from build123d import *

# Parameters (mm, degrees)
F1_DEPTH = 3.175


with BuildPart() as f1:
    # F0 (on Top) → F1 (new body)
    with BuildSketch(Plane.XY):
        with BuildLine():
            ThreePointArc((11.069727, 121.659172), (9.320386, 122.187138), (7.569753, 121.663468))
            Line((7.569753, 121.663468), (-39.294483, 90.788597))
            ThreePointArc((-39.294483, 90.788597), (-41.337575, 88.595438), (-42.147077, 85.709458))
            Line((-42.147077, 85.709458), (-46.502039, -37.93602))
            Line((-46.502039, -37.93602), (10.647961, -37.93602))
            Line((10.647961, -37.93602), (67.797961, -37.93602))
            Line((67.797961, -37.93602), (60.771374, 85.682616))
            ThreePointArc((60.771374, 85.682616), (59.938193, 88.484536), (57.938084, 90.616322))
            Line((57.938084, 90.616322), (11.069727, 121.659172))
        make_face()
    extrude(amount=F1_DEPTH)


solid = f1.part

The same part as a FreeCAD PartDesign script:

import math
import FreeCAD as App
import Part
import Sketcher
Q = App.Units.Quantity

doc = App.newDocument("Part")
body = doc.addObject("PartDesign::Body", "Body")

# Sketch on XY plane
sketch1 = body.newObject("Sketcher::SketchObject", "Sketch")
sketch1.AttachmentSupport = (doc.getObject("XY_Plane"), [""])
sketch1.MapMode = "FlatFace"
sketch1.addGeometry(Part.ArcOfCircle(Part.Circle(App.Vector(9.316488, 119.012143, 0), App.Vector(0, 0, 1), 3.174997), math.radians(56.481816), math.radians(123.377531)), False)
sketch1.addGeometry(Part.LineSegment(App.Vector(7.569753, 121.663468, 0), App.Vector(-39.294483, 90.788597, 0)), False)
sketch1.addGeometry(Part.ArcOfCircle(Part.Circle(App.Vector(-35.801013, 85.485941, 0), App.Vector(0, 0, 1), 6.349999), math.radians(123.377501), math.radians(177.982801)), False)
sketch1.addGeometry(Part.LineSegment(App.Vector(-42.147077, 85.709458, 0), App.Vector(-46.502039, -37.93602, 0)), False)
sketch1.addGeometry(Part.LineSegment(App.Vector(-46.502039, -37.93602, 0), App.Vector(67.797961, -37.93602, 0)), False)
sketch1.addGeometry(Part.LineSegment(App.Vector(67.797961, -37.93602, 0), App.Vector(60.771374, 85.682616, 0)), False)
sketch1.addGeometry(Part.ArcOfCircle(Part.Circle(App.Vector(54.431603, 85.322255, 0), App.Vector(0, 0, 1), 6.350005), math.radians(3.253271), math.radians(56.481832)), False)
sketch1.addGeometry(Part.LineSegment(App.Vector(57.938084, 90.616322, 0), App.Vector(11.069727, 121.659172, 0)), False)
sketch1.addConstraint(Sketcher.Constraint("Tangent", 0, 2, 1, 1))
sketch1.addConstraint(Sketcher.Constraint("Tangent", 1, 2, 2, 1))
sketch1.addConstraint(Sketcher.Constraint("Tangent", 2, 2, 3, 1))
sketch1.addConstraint(Sketcher.Constraint("Coincident", 3, 2, 4, 1))
sketch1.addConstraint(Sketcher.Constraint("Coincident", 4, 2, 5, 1))
sketch1.addConstraint(Sketcher.Constraint("Tangent", 5, 2, 6, 1))
sketch1.addConstraint(Sketcher.Constraint("Tangent", 6, 2, 7, 1))
sketch1.addConstraint(Sketcher.Constraint("Tangent", 7, 2, 0, 1))
sketch1.addConstraint(Sketcher.Constraint("Horizontal", 4))
sketch1.addConstraint(Sketcher.Constraint("Radius", 2, Q("0.25 in")))
sketch1.addConstraint(Sketcher.Constraint("Radius", 6, Q("0.2500002 in")))
sketch1.addConstraint(Sketcher.Constraint("DistanceX", 4, 1, 4, 2, Q("4.5 in")))
sketch1.addConstraint(Sketcher.Constraint("Radius", 0, Q("0.1249999 in")))
sketch1.addConstraint(Sketcher.Constraint("DistanceY", 2, 3, 2, 2, Q("0.0087999 in")))
sketch1.addConstraint(Sketcher.Constraint("DistanceX", 2, 3, 0, 3, Q("45.117501 mm")))
sketch1.addConstraint(Sketcher.Constraint("DistanceY", 2, 3, 0, 3, Q("33.526202 mm")))
sketch1.addConstraint(Sketcher.Constraint("Distance", 3, Q("123.722148 mm")))
sketch1.addConstraint(Sketcher.Constraint("Distance", 7, Q("56.216558 mm")))
sketch1.addConstraint(Sketcher.Constraint("DistanceX", -1, 1, 0, 3, Q("9.316488 mm")))
sketch1.addConstraint(Sketcher.Constraint("DistanceY", -1, 1, 2, 3, Q("85.485941 mm")))
sketch1.addConstraint(Sketcher.Constraint("DistanceY", -1, 1, 6, 2, Q("90.616322 mm")))
pad1 = body.newObject("PartDesign::Pad", "Pad")
pad1.Profile = sketch1
pad1.Length = Q("0.125 in")

doc.recompute()
